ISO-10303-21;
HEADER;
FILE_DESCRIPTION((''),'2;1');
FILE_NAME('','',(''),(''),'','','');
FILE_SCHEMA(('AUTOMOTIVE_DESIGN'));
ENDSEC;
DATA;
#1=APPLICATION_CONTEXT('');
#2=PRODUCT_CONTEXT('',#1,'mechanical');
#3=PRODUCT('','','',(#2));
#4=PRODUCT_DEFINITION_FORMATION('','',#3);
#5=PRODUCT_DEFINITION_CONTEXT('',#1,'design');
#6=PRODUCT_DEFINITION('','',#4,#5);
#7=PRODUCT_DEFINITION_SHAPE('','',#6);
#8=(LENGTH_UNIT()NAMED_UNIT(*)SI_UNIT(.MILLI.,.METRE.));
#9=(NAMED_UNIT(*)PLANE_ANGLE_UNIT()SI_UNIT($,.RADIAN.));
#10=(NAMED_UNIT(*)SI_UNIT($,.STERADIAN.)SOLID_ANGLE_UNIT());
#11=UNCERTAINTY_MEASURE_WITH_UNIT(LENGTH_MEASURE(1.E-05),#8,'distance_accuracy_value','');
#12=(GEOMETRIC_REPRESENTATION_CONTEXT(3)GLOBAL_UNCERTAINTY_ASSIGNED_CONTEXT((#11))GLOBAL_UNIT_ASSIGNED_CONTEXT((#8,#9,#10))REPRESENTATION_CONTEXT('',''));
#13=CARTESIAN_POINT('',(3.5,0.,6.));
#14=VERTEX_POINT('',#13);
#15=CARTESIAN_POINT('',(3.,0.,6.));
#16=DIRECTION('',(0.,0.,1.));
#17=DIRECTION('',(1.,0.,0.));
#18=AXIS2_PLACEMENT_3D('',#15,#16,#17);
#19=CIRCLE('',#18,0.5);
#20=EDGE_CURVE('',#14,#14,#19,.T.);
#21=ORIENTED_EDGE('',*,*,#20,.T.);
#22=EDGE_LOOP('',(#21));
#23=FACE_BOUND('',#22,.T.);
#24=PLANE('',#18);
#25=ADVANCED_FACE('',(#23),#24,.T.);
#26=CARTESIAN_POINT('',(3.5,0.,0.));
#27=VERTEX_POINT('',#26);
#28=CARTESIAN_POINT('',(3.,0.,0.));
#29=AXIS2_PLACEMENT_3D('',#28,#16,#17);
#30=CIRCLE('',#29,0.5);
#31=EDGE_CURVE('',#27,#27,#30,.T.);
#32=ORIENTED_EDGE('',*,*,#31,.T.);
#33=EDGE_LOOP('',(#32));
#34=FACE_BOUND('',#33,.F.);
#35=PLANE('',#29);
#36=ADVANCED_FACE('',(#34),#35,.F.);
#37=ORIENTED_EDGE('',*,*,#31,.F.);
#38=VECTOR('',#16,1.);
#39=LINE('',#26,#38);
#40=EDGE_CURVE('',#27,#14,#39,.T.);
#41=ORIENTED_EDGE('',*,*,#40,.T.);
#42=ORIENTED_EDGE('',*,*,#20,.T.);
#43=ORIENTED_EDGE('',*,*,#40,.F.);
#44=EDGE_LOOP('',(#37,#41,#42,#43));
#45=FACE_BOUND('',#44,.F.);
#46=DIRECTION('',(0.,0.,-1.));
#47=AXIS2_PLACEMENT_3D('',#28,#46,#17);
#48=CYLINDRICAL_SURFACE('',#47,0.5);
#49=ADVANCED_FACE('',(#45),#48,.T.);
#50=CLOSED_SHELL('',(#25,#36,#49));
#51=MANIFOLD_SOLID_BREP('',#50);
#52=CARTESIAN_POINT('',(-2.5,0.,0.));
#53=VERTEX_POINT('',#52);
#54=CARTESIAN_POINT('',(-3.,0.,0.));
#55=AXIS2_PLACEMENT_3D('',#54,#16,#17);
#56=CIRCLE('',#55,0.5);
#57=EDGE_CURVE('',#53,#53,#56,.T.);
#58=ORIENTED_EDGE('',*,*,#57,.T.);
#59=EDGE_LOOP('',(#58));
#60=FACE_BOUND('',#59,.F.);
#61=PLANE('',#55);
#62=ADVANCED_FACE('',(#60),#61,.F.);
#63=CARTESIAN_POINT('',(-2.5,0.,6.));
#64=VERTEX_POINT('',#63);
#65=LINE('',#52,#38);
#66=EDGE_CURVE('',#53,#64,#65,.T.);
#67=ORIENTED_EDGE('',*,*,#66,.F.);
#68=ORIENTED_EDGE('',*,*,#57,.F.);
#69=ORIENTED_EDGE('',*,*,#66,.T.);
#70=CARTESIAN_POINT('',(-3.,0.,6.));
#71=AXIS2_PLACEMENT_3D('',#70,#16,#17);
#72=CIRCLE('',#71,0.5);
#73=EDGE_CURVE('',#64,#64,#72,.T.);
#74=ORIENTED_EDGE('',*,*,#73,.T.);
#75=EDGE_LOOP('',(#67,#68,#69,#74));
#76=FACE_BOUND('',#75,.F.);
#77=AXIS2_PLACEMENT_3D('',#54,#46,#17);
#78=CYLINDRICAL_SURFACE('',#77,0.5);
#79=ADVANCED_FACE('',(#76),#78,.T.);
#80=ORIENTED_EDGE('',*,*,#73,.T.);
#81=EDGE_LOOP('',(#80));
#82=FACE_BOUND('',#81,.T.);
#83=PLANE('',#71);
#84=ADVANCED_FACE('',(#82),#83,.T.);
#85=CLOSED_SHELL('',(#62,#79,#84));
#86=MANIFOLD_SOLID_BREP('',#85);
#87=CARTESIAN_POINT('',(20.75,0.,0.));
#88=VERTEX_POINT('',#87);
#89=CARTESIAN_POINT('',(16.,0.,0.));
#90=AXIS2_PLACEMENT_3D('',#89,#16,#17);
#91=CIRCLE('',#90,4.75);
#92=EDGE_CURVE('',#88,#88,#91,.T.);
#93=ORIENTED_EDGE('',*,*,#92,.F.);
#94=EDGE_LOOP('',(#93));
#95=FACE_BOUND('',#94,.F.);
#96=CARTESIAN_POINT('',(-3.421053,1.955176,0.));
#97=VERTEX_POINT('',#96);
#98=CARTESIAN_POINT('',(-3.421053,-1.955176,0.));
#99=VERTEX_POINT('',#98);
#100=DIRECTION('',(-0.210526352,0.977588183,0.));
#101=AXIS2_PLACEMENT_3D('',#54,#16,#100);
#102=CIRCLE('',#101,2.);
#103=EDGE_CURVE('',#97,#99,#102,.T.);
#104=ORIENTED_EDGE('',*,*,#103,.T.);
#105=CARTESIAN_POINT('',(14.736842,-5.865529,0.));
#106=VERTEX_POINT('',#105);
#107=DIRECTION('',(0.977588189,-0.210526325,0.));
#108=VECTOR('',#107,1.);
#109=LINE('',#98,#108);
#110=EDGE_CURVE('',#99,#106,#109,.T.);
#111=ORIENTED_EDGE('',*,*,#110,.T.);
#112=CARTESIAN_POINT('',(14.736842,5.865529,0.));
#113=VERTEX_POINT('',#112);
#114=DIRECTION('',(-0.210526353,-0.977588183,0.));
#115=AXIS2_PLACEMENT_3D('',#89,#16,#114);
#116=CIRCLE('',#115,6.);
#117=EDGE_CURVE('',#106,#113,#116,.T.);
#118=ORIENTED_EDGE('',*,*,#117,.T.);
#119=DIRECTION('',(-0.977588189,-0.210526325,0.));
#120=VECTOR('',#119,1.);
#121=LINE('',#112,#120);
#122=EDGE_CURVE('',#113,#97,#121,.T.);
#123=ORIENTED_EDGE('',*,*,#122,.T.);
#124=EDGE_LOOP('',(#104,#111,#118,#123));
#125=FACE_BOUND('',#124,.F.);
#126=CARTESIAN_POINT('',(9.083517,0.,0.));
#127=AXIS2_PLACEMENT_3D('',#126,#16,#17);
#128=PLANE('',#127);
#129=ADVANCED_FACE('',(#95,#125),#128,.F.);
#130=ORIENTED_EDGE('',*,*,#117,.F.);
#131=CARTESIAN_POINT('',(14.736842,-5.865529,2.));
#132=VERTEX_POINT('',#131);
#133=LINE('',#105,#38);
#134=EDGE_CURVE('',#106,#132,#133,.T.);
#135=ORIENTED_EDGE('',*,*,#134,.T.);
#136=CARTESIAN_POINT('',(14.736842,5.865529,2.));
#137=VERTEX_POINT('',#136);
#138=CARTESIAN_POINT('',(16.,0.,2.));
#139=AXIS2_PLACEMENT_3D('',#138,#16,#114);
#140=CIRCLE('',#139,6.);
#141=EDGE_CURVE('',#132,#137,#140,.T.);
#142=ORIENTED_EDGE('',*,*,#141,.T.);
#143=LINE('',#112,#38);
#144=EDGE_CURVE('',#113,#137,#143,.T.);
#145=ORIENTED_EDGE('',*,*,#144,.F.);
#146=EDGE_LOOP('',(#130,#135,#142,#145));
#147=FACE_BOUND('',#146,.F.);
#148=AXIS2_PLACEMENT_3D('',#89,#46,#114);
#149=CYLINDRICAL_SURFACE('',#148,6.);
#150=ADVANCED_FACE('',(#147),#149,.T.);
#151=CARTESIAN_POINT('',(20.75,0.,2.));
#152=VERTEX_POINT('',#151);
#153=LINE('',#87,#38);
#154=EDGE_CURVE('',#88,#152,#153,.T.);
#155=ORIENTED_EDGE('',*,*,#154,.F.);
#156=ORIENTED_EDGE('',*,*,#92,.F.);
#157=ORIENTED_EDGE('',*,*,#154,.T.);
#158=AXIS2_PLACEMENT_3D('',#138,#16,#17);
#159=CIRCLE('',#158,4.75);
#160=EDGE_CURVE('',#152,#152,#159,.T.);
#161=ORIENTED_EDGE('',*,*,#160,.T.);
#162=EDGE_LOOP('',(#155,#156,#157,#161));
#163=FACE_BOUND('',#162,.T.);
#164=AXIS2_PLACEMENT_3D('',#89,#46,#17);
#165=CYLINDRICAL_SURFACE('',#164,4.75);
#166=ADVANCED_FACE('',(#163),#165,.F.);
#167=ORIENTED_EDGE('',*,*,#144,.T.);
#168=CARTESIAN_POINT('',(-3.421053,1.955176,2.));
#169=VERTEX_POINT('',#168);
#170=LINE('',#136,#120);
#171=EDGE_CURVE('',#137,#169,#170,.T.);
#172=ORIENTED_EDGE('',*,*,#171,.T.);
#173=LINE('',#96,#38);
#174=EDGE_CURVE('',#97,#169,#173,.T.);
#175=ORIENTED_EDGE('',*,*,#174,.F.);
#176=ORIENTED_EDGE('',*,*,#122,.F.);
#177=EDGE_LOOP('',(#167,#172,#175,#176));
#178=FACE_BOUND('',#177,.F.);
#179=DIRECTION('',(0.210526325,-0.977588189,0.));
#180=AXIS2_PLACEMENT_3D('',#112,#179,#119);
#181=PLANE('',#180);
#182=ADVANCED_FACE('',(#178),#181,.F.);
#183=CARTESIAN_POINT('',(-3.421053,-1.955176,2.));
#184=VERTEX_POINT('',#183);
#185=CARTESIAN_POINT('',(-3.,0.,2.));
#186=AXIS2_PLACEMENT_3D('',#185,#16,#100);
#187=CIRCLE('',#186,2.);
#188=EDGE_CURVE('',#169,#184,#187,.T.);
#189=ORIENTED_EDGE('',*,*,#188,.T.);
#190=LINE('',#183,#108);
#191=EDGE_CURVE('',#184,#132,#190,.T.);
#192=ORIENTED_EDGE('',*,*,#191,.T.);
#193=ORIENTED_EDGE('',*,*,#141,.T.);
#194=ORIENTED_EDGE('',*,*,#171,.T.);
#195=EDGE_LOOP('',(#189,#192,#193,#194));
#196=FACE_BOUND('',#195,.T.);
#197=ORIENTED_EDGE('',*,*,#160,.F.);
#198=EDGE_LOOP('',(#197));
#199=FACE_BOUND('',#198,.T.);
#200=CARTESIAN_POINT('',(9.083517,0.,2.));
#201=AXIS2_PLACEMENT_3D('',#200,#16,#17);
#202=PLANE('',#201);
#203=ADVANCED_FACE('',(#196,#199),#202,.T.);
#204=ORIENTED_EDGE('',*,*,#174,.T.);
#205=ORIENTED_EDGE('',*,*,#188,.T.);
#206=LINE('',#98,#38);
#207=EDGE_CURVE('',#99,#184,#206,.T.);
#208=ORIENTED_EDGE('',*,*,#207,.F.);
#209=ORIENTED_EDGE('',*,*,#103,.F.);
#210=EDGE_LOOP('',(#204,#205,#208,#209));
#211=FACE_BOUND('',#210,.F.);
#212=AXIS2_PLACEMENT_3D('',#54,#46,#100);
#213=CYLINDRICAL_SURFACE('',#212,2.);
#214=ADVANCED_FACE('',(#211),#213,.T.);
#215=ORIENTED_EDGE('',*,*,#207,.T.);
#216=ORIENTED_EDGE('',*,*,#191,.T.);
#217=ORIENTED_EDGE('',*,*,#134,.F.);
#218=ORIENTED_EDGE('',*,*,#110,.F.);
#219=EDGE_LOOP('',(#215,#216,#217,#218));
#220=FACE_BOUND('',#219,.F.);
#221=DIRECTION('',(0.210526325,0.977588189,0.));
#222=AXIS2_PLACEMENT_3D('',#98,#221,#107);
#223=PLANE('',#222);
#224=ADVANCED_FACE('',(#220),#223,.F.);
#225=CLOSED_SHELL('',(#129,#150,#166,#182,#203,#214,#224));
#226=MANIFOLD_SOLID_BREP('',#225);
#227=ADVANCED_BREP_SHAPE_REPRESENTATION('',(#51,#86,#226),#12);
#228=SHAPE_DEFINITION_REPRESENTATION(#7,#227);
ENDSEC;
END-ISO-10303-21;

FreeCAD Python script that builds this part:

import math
import FreeCAD as App
import Part
import Sketcher

doc = App.newDocument("Part")
body = doc.addObject("PartDesign::Body", "Body")
body.AllowCompound = True

# Sketch on XY plane
sketch1 = body.newObject("Sketcher::SketchObject", "Sketch")
sketch1.AttachmentSupport = (doc.getObject("XY_Plane"), [""])
sketch1.MapMode = "FlatFace"
sketch1.addGeometry([
    Part.Circle(App.Vector(3, 0, 0), App.Vector(0, 0, 1), 0.5),
    Part.Circle(App.Vector(-3, 0, 0), App.Vector(0, 0, 1), 0.5),
], False)
sketch1.addConstraint([
    Sketcher.Constraint("Equal", 0, 1),
    Sketcher.Constraint("Symmetric", 0, 3, 1, 3, -1, 1),
    Sketcher.Constraint("PointOnObject", 0, 3, -1),
    Sketcher.Constraint("Diameter", 0, 1.0),
    Sketcher.Constraint("DistanceX", -1, 1, 0, 3, 3.0),
])
pad1 = body.newObject("PartDesign::Pad", "Pad")
pad1.Profile = sketch1
pad1.Length = 6
body2 = doc.addObject("PartDesign::Body", "Body001")

# Sketch on XY plane
sketch2 = body2.newObject("Sketcher::SketchObject", "Sketch001")
sketch2.AttachmentSupport = (doc.getObject("XY_Plane001"), [""])
sketch2.MapMode = "FlatFace"
sketch2.addGeometry([
    Part.LineSegment(App.Vector(-3.4, -2, 0), App.Vector(14.7, -5.9, 0)),  # 0
    Part.ArcOfCircle(Part.Circle(App.Vector(16, 0, 0), App.Vector(0, 0, 1), 6), math.radians(-102), math.radians(102)),  # 1
    Part.LineSegment(App.Vector(14.7, 5.9, 0), App.Vector(-3.4, 2, 0)),  # 2
    Part.ArcOfCircle(Part.Circle(App.Vector(-3, 0, 0), App.Vector(0, 0, 1), 2), math.radians(102), math.radians(258)),  # 3
    Part.Circle(App.Vector(16, 0, 0), App.Vector(0, 0, 1), 4.8),  # 4
], False)
sketch2.addConstraint([
    Sketcher.Constraint("Tangent", 0, 2, 1, 1),
    Sketcher.Constraint("Tangent", 1, 2, 2, 1),
    Sketcher.Constraint("Tangent", 2, 2, 3, 1),
    Sketcher.Constraint("Tangent", 3, 2, 0, 1),
    Sketcher.Constraint("Coincident", 4, 3, 1, 3),
    Sketcher.Constraint("Symmetric", 0, 2, 1, 2, -1),
    Sketcher.Constraint("Radius", 1, 6.0),
    Sketcher.Constraint("Radius", 3, 2.0),
    Sketcher.Constraint("Diameter", 4, 9.5),
    Sketcher.Constraint("DistanceX", -1, 1, 1, 3, 16.0),
    Sketcher.Constraint("DistanceX", 3, 3, -1, 1, 3.0),
])
pad2 = body2.newObject("PartDesign::Pad", "Pad001")
pad2.Profile = sketch2
pad2.Length = 2

doc.recompute()
